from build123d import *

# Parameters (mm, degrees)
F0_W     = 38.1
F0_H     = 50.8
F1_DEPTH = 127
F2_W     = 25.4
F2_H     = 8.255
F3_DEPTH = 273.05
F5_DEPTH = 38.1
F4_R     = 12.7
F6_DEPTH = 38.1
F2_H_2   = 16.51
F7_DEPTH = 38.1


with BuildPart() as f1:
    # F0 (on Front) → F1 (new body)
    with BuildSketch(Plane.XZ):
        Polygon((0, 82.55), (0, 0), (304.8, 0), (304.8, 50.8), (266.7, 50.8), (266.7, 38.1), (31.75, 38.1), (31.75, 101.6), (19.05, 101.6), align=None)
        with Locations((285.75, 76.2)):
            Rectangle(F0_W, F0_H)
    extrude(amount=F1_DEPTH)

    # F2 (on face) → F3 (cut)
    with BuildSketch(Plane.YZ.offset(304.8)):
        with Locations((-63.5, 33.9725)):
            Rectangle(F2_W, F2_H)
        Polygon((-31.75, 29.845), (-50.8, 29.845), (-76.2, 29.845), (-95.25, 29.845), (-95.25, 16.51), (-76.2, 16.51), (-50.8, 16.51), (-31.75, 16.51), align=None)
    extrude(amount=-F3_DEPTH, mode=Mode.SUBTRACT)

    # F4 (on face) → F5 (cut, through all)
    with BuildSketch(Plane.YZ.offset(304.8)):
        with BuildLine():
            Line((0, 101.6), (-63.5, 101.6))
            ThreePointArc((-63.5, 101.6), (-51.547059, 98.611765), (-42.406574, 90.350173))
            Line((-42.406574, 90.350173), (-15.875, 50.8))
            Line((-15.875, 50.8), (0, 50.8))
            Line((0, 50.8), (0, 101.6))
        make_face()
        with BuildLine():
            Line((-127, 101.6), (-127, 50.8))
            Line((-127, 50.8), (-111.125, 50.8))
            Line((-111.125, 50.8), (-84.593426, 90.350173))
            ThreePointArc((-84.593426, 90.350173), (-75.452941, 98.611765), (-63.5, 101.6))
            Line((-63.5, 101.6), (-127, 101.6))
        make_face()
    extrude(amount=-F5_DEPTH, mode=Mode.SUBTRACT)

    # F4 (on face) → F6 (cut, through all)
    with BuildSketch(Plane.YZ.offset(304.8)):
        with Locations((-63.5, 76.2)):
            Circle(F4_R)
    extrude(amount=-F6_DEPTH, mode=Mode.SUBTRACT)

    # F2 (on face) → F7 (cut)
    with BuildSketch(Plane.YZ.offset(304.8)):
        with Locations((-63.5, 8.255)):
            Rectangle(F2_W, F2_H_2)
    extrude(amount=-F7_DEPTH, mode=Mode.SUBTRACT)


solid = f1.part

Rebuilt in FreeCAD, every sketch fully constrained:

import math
import FreeCAD as App
import Part
import Sketcher
Q = App.Units.Quantity

doc = App.newDocument("Part")
body = doc.addObject("PartDesign::Body", "Body")

# Sketch on XZ plane
sketch1 = body.newObject("Sketcher::SketchObject", "Sketch")
sketch1.AttachmentSupport = (doc.getObject("XZ_Plane"), [""])
sketch1.MapMode = "FlatFace"
sketch1.addGeometry(Part.LineSegment(App.Vector(0, 83, 0), App.Vector(0, 0, 0)), False)
sketch1.addGeometry(Part.LineSegment(App.Vector(0, 0, 0), App.Vector(305, 0, 0)), False)
sketch1.addGeometry(Part.LineSegment(App.Vector(305, 0, 0), App.Vector(305, 102, 0)), False)
sketch1.addGeometry(Part.LineSegment(App.Vector(305, 102, 0), App.Vector(267, 102, 0)), False)
sketch1.addGeometry(Part.LineSegment(App.Vector(267, 102, 0), App.Vector(267, 38, 0)), False)
sketch1.addGeometry(Part.LineSegment(App.Vector(267, 38, 0), App.Vector(32, 38, 0)), False)
sketch1.addGeometry(Part.LineSegment(App.Vector(32, 38, 0), App.Vector(32, 102, 0)), False)
sketch1.addGeometry(Part.LineSegment(App.Vector(32, 102, 0), App.Vector(19, 102, 0)), False)
sketch1.addGeometry(Part.LineSegment(App.Vector(19, 102, 0), App.Vector(0, 83, 0)), False)
sketch1.addConstraint(Sketcher.Constraint("Coincident", 0, 2, 1, 1))
sketch1.addConstraint(Sketcher.Constraint("Coincident", 1, 2, 2, 1))
sketch1.addConstraint(Sketcher.Constraint("Coincident", 2, 2, 3, 1))
sketch1.addConstraint(Sketcher.Constraint("Coincident", 3, 2, 4, 1))
sketch1.addConstraint(Sketcher.Constraint("Coincident", 4, 2, 5, 1))
sketch1.addConstraint(Sketcher.Constraint("Coincident", 5, 2, 6, 1))
sketch1.addConstraint(Sketcher.Constraint("Coincident", 6, 2, 7, 1))
sketch1.addConstraint(Sketcher.Constraint("Coincident", 7, 2, 8, 1))
sketch1.addConstraint(Sketcher.Constraint("Coincident", 8, 2, 0, 1))
sketch1.addConstraint(Sketcher.Constraint("Vertical", 0))
sketch1.addConstraint(Sketcher.Constraint("Horizontal", 1))
sketch1.addConstraint(Sketcher.Constraint("Vertical", 2))
sketch1.addConstraint(Sketcher.Constraint("Horizontal", 3))
sketch1.addConstraint(Sketcher.Constraint("Vertical", 4))
sketch1.addConstraint(Sketcher.Constraint("Horizontal", 5))
sketch1.addConstraint(Sketcher.Constraint("Vertical", 6))
sketch1.addConstraint(Sketcher.Constraint("Horizontal", 7))
sketch1.addConstraint(Sketcher.Constraint("Coincident", 0, 2, -1, 1))
sketch1.addConstraint(Sketcher.Constraint("Horizontal", 3, 2, 6, 2))
sketch1.addConstraint(Sketcher.Constraint("DistanceX", 1, 1, 1, 2, Q("12 in")))
sketch1.addConstraint(Sketcher.Constraint("DistanceY", 2, 1, 2, 2, Q("4 in")))
sketch1.addConstraint(Sketcher.Constraint("DistanceX", 3, 2, 3, 1, Q("1.5 in")))
sketch1.addConstraint(Sketcher.Constraint("DistanceX", 7, 2, 7, 1, Q("0.5 in")))
sketch1.addConstraint(Sketcher.Constraint("DistanceY", 4, 2, 4, 1, Q("2.5 in")))
sketch1.addConstraint(Sketcher.Constraint("Angle", 8, Q("-135 deg")))
sketch1.addConstraint(Sketcher.Constraint("DistanceX", 5, 2, 5, 1, Q("9.25 in")))
pad1 = body.newObject("PartDesign::Pad", "Pad")
pad1.Profile = sketch1
pad1.Length = Q("5 in")

# Sketch on YZ plane
sketch2 = body.newObject("Sketcher::SketchObject", "Sketch001")
sketch2.AttachmentSupport = (doc.getObject("YZ_Plane"), [""])
sketch2.MapMode = "FlatFace"
sketch2.AttachmentOffset = App.Placement(App.Vector(0, 0, 12 * 25.4), App.Rotation())
sketch2.addGeometry(Part.LineSegment(App.Vector(-32, 30, 0), App.Vector(-51, 30, 0)), False)
sketch2.addGeometry(Part.LineSegment(App.Vector(-51, 30, 0), App.Vector(-51, 38, 0)), False)
sketch2.addGeometry(Part.LineSegment(App.Vector(-51, 38, 0), App.Vector(-76, 38, 0)), False)
sketch2.addGeometry(Part.LineSegment(App.Vector(-76, 38, 0), App.Vector(-76, 30, 0)), False)
sketch2.addGeometry(Part.LineSegment(App.Vector(-76, 30, 0), App.Vector(-95, 30, 0)), False)
sketch2.addGeometry(Part.LineSegment(App.Vector(-95, 30, 0), App.Vector(-95, 17, 0)), False)
sketch2.addGeometry(Part.LineSegment(App.Vector(-95, 17, 0), App.Vector(-32, 17, 0)), False)
sketch2.addGeometry(Part.LineSegment(App.Vector(-32, 17, 0), App.Vector(-32, 30, 0)), False)
sketch2.addConstraint(Sketcher.Constraint("Coincident", 0, 2, 1, 1))
sketch2.addConstraint(Sketcher.Constraint("Coincident", 1, 2, 2, 1))
sketch2.addConstraint(Sketcher.Constraint("Coincident", 2, 2, 3, 1))
sketch2.addConstraint(Sketcher.Constraint("Coincident", 3, 2, 4, 1))
sketch2.addConstraint(Sketcher.Constraint("Coincident", 4, 2, 5, 1))
sketch2.addConstraint(Sketcher.Constraint("Coincident", 5, 2, 6, 1))
sketch2.addConstraint(Sketcher.Constraint("Coincident", 6, 2, 7, 1))
sketch2.addConstraint(Sketcher.Constraint("Coincident", 7, 2, 0, 1))
sketch2.addConstraint(Sketcher.Constraint("Horizontal", 0))
sketch2.addConstraint(Sketcher.Constraint("Vertical", 1))
sketch2.addConstraint(Sketcher.Constraint("Horizontal", 2))
sketch2.addConstraint(Sketcher.Constraint("Vertical", 3))
sketch2.addConstraint(Sketcher.Constraint("Horizontal", 4))
sketch2.addConstraint(Sketcher.Constraint("Vertical", 5))
sketch2.addConstraint(Sketcher.Constraint("Horizontal", 6))
sketch2.addConstraint(Sketcher.Constraint("Vertical", 7))
sketch2.addConstraint(Sketcher.Constraint("Horizontal", 0, 2, 3, 2))
sketch2.addConstraint(Sketcher.Constraint("Equal", 0, 4))
sketch2.addConstraint(Sketcher.Constraint("DistanceX", 2, 2, 2, 1, Q("1 in")))
sketch2.addConstraint(Sketcher.Constraint("DistanceX", 6, 1, 6, 2, Q("2.5 in")))
sketch2.addConstraint(Sketcher.Constraint("DistanceX", 0, 2, -1, 1, Q("2 in")))
sketch2.addConstraint(Sketcher.Constraint("DistanceY", -1, 1, 1, 2, Q("1.5 in")))
sketch2.addConstraint(Sketcher.Constraint("DistanceY", 1, 1, 1, 2, Q("0.325 in")))
sketch2.addConstraint(Sketcher.Constraint("DistanceY", 5, 2, 5, 1, Q("0.525 in")))
pocket1 = body.newObject("PartDesign::Pocket", "Pocket")
pocket1.Profile = sketch2
pocket1.Length = Q("10.75 in")

# Sketch on YZ plane
sketch3 = body.newObject("Sketcher::SketchObject", "Sketch002")
sketch3.AttachmentSupport = (doc.getObject("YZ_Plane"), [""])
sketch3.MapMode = "FlatFace"
sketch3.AttachmentOffset = App.Placement(App.Vector(0, 0, 12 * 25.4), App.Rotation())
sketch3.addGeometry(Part.LineSegment(App.Vector(0, 102, 0), App.Vector(-64, 102, 0)), False)
sketch3.addGeometry(Part.ArcOfCircle(Part.Circle(App.Vector(-63, 76, 0), App.Vector(0, 0, 1), 25), math.radians(34), math.radians(90)), False)
sketch3.addGeometry(Part.LineSegment(App.Vector(-42, 90, 0), App.Vector(-16, 51, 0)), False)
sketch3.addGeometry(Part.LineSegment(App.Vector(-16, 51, 0), App.Vector(0, 51, 0)), False)
sketch3.addGeometry(Part.LineSegment(App.Vector(0, 51, 0), App.Vector(0, 102, 0)), False)
sketch3.addGeometry(Part.LineSegment(App.Vector(-127, 102, 0), App.Vector(-127, 51, 0)), False)
sketch3.addGeometry(Part.LineSegment(App.Vector(-127, 51, 0), App.Vector(-111, 51, 0)), False)
sketch3.addGeometry(Part.LineSegment(App.Vector(-111, 51, 0), App.Vector(-85, 90, 0)), False)
sketch3.addGeometry(Part.ArcOfCircle(Part.Circle(App.Vector(-64, 76, 0), App.Vector(0, 0, 1), 25), math.radians(90), math.radians(146)), False)
sketch3.addGeometry(Part.LineSegment(App.Vector(-64, 102, 0), App.Vector(-127, 102, 0)), False)
sketch3.addConstraint(Sketcher.Constraint("Tangent", 0, 2, 1, 2))
sketch3.addConstraint(Sketcher.Constraint("Tangent", 1, 1, 2, 1))
sketch3.addConstraint(Sketcher.Constraint("Coincident", 2, 2, 3, 1))
sketch3.addConstraint(Sketcher.Constraint("Coincident", 3, 2, 4, 1))
sketch3.addConstraint(Sketcher.Constraint("Coincident", 4, 2, 0, 1))
sketch3.addConstraint(Sketcher.Constraint("Coincident", 5, 2, 6, 1))
sketch3.addConstraint(Sketcher.Constraint("Coincident", 6, 2, 7, 1))
sketch3.addConstraint(Sketcher.Constraint("Tangent", 7, 2, 8, 2))
sketch3.addConstraint(Sketcher.Constraint("Tangent", 8, 1, 9, 1))
sketch3.addConstraint(Sketcher.Constraint("Coincident", 9, 2, 5, 1))
sketch3.addConstraint(Sketcher.Constraint("Horizontal", 0))
sketch3.addConstraint(Sketcher.Constraint("Horizontal", 3))
sketch3.addConstraint(Sketcher.Constraint("Vertical", 4))
sketch3.addConstraint(Sketcher.Constraint("Vertical", 5))
sketch3.addConstraint(Sketcher.Constraint("Horizontal", 6))
sketch3.addConstraint(Sketcher.Constraint("Horizontal", 9))
sketch3.addConstraint(Sketcher.Constraint("Coincident", 8, 3, 1, 3))
sketch3.addConstraint(Sketcher.Constraint("Equal", 1, 8))
sketch3.addConstraint(Sketcher.Constraint("PointOnObject", 3, 2, -2))
sketch3.addConstraint(Sketcher.Constraint("Horizontal", 3, 2, 5, 2))
sketch3.addConstraint(Sketcher.Constraint("Horizontal", 1, 1, 7, 2))
sketch3.addConstraint(Sketcher.Constraint("Equal", 3, 6))
sketch3.addConstraint(Sketcher.Constraint("Radius", 1, Q("1 in")))
sketch3.addConstraint(Sketcher.Constraint("DistanceY", 4, 1, 4, 2, Q("2 in")))
sketch3.addConstraint(Sketcher.Constraint("DistanceX", 0, 2, 0, 1, Q("2.5 in")))
sketch3.addConstraint(Sketcher.Constraint("DistanceY", -1, 1, 1, 3, Q("3 in")))
sketch3.addConstraint(Sketcher.Constraint("DistanceX", 3, 1, 3, 2, Q("0.625 in")))
pocket2 = body.newObject("PartDesign::Pocket", "Pocket001")
pocket2.Profile = sketch3
pocket2.Length = Q("1.5 in")

# Sketch on YZ plane
sketch4 = body.newObject("Sketcher::SketchObject", "Sketch003")
sketch4.AttachmentSupport = (doc.getObject("YZ_Plane"), [""])
sketch4.MapMode = "FlatFace"
sketch4.AttachmentOffset = App.Placement(App.Vector(0, 0, 12 * 25.4), App.Rotation())
sketch4.addGeometry(Part.Circle(App.Vector(-64, 76, 0), App.Vector(0, 0, 1), 13), False)
sketch4.addConstraint(Sketcher.Constraint("Diameter", 0, Q("1 in")))
sketch4.addConstraint(Sketcher.Constraint("DistanceY", -1, 1, 0, 3, Q("3 in")))
sketch4.addConstraint(Sketcher.Constraint("DistanceX", 0, 3, -1, 1, Q("2.5 in")))
pocket3 = body.newObject("PartDesign::Pocket", "Pocket002")
pocket3.Profile = sketch4
pocket3.Length = Q("1.5 in")

# Sketch on YZ plane
sketch5 = body.newObject("Sketcher::SketchObject", "Sketch004")
sketch5.AttachmentSupport = (doc.getObject("YZ_Plane"), [""])
sketch5.MapMode = "FlatFace"
sketch5.AttachmentOffset = App.Placement(App.Vector(0, 0, 12 * 25.4), App.Rotation())
sketch5.addGeometry(Part.LineSegment(App.Vector(-76, 17, 0), App.Vector(-76, 0, 0)), False)
sketch5.addGeometry(Part.LineSegment(App.Vector(-76, 0, 0), App.Vector(-51, 0, 0)), False)
sketch5.addGeometry(Part.LineSegment(App.Vector(-51, 0, 0), App.Vector(-51, 17, 0)), False)
sketch5.addGeometry(Part.LineSegment(App.Vector(-51, 17, 0), App.Vector(-76, 17, 0)), False)
sketch5.addConstraint(Sketcher.Constraint("Coincident", 0, 2, 1, 1))
sketch5.addConstraint(Sketcher.Constraint("Coincident", 1, 2, 2, 1))
sketch5.addConstraint(Sketcher.Constraint("Coincident", 2, 2, 3, 1))
sketch5.addConstraint(Sketcher.Constraint("Coincident", 3, 2, 0, 1))
sketch5.addConstraint(Sketcher.Constraint("Vertical", 0))
sketch5.addConstraint(Sketcher.Constraint("Horizontal", 1))
sketch5.addConstraint(Sketcher.Constraint("Vertical", 2))
sketch5.addConstraint(Sketcher.Constraint("Horizontal", 3))
sketch5.addConstraint(Sketcher.Constraint("PointOnObject", 0, 2, -1))
sketch5.addConstraint(Sketcher.Constraint("DistanceX", 1, 1, 1, 2, Q("1 in")))
sketch5.addConstraint(Sketcher.Constraint("DistanceX", 0, 2, -1, 1, Q("3 in")))
sketch5.addConstraint(Sketcher.Constraint("DistanceY", 0, 2, 0, 1, Q("0.65 in")))
pocket4 = body.newObject("PartDesign::Pocket", "Pocket003")
pocket4.Profile = sketch5
pocket4.Length = Q("1.5 in")

doc.recompute()
